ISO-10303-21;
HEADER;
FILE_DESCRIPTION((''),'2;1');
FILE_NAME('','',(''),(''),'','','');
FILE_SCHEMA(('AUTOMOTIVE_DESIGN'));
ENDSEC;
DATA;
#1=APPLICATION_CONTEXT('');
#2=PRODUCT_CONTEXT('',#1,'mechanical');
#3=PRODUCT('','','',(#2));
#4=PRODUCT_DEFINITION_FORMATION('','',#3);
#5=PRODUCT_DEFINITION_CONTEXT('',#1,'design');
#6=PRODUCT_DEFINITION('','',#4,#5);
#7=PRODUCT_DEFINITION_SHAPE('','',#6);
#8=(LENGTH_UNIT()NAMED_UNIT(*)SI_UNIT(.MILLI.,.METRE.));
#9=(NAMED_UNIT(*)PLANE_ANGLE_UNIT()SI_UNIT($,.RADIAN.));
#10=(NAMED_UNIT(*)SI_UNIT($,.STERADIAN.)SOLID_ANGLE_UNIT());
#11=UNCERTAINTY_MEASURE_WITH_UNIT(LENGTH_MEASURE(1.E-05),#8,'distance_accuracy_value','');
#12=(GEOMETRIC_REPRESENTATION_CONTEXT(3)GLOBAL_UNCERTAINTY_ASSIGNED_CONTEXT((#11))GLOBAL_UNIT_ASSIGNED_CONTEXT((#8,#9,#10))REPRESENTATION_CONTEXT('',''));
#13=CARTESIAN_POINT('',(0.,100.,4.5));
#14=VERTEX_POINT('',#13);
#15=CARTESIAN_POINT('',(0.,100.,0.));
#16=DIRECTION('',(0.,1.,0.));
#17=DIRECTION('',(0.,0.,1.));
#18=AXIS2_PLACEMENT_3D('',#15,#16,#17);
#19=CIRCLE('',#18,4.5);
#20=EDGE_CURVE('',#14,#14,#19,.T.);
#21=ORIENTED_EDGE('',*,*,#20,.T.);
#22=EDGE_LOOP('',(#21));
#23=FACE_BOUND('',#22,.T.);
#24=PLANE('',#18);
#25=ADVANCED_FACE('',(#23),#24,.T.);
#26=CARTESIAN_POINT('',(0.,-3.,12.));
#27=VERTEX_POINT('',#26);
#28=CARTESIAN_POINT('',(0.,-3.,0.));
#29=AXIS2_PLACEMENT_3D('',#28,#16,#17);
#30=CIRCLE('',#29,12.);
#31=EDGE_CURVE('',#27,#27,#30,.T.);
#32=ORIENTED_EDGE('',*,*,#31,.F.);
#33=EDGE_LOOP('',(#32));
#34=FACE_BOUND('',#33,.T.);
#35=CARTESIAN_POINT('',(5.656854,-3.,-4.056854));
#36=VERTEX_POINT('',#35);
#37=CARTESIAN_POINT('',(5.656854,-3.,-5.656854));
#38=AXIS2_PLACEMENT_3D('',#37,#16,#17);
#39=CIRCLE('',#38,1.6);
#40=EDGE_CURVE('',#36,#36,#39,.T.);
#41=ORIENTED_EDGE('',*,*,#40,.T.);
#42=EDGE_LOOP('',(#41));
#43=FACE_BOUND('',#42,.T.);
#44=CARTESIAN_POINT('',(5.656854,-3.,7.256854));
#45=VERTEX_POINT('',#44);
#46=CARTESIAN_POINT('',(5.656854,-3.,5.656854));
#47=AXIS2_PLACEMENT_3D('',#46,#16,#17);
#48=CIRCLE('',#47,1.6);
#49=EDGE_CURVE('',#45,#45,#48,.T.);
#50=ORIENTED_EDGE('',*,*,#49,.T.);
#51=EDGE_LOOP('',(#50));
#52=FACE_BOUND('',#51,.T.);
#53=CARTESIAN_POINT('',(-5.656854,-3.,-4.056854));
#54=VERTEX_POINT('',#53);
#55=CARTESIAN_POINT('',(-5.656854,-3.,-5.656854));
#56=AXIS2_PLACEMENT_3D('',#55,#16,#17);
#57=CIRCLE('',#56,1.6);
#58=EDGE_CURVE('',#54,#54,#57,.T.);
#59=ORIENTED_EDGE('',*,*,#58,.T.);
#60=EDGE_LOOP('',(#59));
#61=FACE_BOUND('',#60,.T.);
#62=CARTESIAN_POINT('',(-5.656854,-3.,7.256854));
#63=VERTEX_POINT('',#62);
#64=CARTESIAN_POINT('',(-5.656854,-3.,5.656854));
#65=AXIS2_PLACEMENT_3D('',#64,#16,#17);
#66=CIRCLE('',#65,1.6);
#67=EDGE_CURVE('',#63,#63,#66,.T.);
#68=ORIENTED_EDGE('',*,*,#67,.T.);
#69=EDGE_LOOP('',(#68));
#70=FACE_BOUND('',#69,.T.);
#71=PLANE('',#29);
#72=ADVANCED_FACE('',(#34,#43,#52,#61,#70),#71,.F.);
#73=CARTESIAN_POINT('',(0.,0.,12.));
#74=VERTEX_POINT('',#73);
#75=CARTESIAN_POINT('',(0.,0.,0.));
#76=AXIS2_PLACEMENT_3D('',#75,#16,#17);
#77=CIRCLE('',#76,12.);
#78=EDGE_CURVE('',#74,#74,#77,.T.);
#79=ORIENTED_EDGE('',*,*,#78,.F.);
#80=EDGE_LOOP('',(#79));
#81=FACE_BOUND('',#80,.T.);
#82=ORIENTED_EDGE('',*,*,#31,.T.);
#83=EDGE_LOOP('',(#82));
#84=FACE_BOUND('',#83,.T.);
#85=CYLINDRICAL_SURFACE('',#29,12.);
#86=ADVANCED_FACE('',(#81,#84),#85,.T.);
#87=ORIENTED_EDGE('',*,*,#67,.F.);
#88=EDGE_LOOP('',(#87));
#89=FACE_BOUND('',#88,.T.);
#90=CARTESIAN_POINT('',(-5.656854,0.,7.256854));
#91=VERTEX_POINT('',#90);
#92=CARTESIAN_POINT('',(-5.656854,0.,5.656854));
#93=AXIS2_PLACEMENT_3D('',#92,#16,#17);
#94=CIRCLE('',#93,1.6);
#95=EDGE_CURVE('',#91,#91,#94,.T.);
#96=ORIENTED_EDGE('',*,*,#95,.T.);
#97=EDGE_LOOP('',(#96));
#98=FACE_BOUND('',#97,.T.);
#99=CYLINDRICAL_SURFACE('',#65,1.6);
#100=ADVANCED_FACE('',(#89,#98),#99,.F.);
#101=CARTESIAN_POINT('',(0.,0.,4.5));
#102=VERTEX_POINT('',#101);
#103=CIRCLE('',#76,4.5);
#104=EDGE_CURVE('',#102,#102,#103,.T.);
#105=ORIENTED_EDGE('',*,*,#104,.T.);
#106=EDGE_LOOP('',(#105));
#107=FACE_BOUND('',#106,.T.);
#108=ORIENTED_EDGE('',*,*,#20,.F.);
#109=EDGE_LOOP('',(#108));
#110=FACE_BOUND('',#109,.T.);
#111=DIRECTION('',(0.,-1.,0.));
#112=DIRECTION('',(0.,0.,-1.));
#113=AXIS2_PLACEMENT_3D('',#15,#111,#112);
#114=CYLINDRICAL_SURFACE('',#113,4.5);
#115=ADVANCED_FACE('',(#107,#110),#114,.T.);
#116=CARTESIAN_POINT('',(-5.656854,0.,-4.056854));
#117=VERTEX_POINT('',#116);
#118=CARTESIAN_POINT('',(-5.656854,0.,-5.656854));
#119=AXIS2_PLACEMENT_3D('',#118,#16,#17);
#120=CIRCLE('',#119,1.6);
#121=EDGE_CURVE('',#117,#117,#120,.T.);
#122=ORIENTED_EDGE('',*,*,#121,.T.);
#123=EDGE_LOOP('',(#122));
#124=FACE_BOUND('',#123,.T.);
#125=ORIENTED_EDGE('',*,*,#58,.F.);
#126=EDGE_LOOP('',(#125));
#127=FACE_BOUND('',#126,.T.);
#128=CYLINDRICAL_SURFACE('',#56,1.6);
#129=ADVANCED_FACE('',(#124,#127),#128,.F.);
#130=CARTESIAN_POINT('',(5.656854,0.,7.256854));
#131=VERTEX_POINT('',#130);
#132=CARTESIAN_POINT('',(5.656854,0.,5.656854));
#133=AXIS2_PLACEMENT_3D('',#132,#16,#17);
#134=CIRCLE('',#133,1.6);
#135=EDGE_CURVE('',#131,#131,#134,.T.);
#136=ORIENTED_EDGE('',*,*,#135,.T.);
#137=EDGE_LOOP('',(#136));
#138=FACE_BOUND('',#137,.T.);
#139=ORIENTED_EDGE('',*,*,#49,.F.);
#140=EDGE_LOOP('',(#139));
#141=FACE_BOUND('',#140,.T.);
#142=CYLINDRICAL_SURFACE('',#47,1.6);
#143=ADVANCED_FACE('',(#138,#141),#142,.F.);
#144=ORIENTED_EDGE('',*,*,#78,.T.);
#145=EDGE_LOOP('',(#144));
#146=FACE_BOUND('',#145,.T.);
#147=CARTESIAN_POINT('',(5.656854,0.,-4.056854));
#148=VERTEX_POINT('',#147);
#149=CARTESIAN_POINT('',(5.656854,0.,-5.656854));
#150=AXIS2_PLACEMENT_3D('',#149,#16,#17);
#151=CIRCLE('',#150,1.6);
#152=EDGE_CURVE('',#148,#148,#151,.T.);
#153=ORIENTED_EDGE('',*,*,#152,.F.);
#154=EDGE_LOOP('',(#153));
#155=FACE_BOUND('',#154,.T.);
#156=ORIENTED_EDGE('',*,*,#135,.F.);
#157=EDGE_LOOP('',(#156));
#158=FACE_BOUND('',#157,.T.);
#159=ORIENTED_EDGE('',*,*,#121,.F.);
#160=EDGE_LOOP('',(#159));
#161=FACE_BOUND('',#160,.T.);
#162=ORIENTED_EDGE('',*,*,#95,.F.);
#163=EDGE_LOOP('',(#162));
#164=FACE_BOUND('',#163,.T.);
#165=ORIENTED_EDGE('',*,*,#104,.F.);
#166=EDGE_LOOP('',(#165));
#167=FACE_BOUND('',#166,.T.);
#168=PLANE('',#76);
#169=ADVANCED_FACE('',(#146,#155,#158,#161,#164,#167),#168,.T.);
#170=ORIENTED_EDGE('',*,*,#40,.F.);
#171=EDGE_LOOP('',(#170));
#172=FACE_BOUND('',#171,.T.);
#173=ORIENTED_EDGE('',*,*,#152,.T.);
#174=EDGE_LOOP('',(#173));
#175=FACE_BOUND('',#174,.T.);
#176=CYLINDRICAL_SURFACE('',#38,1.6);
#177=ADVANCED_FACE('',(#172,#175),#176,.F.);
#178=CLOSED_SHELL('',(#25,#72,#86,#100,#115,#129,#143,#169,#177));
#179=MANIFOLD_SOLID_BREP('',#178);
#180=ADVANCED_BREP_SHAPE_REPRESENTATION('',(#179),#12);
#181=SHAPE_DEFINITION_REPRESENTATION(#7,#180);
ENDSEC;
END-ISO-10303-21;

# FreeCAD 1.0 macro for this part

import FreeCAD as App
import Part
import Sketcher

V = App.Vector

doc = App.newDocument("Part")
body = doc.addObject("PartDesign::Body", "Body")

# Sketch on XZ plane
sketch1 = body.newObject("Sketcher::SketchObject", "Sketch")
sketch1.AttachmentSupport = (doc.getObject("XZ_Plane"), [""])
sketch1.MapMode = "FlatFace"
sketch1.addGeometry(Part.Circle(V(0, 0, 0), V(0, 0, 1), 12), False)
sketch1.addConstraint([
    Sketcher.Constraint("Coincident", 0, 3, -1, 1),
    Sketcher.Constraint("Diameter", 0, 24.0),
])
pad1 = body.newObject("PartDesign::Pad", "Pad")
pad1.Profile = sketch1
pad1.Length = 3

# Sketch on XZ plane
sketch2 = body.newObject("Sketcher::SketchObject", "Sketch001")
sketch2.AttachmentSupport = (doc.getObject("XZ_Plane"), [""])
sketch2.MapMode = "FlatFace"
sketch2.addGeometry([
    Part.Circle(V(5.7, 5.7, 0), V(0, 0, 1), 1.6),
    Part.Circle(V(-5.7, 5.7, 0), V(0, 0, 1), 1.6),
    Part.Circle(V(-5.7, -5.7, 0), V(0, 0, 1), 1.6),
    Part.Circle(V(5.7, -5.7, 0), V(0, 0, 1), 1.6),
], False)
sketch2.addConstraint([
    Sketcher.Constraint("Equal", 0, 1),
    Sketcher.Constraint("Equal", 1, 2),
    Sketcher.Constraint("Equal", 2, 3),
    Sketcher.Constraint("Symmetric", 0, 3, 2, 3, -1, 1),
    Sketcher.Constraint("Symmetric", 1, 3, 3, 3, -1, 1),
    Sketcher.Constraint("Symmetric", 0, 3, 1, 3, -2),
    Sketcher.Constraint("Diameter", 0, 3.2),
    Sketcher.Constraint("DistanceX", 1, 3, 0, 3, 11.313708),
    Sketcher.Constraint("DistanceY", 2, 3, 1, 3, 11.313708),
])
pocket1 = body.newObject("PartDesign::Pocket", "Pocket")
pocket1.Profile = sketch2
pocket1.Length = 3
pocket1.Reversed = True

# Sketch on XZ plane
sketch3 = body.newObject("Sketcher::SketchObject", "Sketch002")
sketch3.AttachmentSupport = (doc.getObject("XZ_Plane"), [""])
sketch3.MapMode = "FlatFace"
sketch3.addGeometry(Part.Circle(V(0, 0, 0), V(0, 0, 1), 4.5), False)
sketch3.addConstraint([
    Sketcher.Constraint("Coincident", 0, 3, -1, 1),
    Sketcher.Constraint("Diameter", 0, 9.0),
])
pad2 = body.newObject("PartDesign::Pad", "Pad001")
pad2.Profile = sketch3
pad2.Length = 100
pad2.Reversed = True

doc.recompute()
